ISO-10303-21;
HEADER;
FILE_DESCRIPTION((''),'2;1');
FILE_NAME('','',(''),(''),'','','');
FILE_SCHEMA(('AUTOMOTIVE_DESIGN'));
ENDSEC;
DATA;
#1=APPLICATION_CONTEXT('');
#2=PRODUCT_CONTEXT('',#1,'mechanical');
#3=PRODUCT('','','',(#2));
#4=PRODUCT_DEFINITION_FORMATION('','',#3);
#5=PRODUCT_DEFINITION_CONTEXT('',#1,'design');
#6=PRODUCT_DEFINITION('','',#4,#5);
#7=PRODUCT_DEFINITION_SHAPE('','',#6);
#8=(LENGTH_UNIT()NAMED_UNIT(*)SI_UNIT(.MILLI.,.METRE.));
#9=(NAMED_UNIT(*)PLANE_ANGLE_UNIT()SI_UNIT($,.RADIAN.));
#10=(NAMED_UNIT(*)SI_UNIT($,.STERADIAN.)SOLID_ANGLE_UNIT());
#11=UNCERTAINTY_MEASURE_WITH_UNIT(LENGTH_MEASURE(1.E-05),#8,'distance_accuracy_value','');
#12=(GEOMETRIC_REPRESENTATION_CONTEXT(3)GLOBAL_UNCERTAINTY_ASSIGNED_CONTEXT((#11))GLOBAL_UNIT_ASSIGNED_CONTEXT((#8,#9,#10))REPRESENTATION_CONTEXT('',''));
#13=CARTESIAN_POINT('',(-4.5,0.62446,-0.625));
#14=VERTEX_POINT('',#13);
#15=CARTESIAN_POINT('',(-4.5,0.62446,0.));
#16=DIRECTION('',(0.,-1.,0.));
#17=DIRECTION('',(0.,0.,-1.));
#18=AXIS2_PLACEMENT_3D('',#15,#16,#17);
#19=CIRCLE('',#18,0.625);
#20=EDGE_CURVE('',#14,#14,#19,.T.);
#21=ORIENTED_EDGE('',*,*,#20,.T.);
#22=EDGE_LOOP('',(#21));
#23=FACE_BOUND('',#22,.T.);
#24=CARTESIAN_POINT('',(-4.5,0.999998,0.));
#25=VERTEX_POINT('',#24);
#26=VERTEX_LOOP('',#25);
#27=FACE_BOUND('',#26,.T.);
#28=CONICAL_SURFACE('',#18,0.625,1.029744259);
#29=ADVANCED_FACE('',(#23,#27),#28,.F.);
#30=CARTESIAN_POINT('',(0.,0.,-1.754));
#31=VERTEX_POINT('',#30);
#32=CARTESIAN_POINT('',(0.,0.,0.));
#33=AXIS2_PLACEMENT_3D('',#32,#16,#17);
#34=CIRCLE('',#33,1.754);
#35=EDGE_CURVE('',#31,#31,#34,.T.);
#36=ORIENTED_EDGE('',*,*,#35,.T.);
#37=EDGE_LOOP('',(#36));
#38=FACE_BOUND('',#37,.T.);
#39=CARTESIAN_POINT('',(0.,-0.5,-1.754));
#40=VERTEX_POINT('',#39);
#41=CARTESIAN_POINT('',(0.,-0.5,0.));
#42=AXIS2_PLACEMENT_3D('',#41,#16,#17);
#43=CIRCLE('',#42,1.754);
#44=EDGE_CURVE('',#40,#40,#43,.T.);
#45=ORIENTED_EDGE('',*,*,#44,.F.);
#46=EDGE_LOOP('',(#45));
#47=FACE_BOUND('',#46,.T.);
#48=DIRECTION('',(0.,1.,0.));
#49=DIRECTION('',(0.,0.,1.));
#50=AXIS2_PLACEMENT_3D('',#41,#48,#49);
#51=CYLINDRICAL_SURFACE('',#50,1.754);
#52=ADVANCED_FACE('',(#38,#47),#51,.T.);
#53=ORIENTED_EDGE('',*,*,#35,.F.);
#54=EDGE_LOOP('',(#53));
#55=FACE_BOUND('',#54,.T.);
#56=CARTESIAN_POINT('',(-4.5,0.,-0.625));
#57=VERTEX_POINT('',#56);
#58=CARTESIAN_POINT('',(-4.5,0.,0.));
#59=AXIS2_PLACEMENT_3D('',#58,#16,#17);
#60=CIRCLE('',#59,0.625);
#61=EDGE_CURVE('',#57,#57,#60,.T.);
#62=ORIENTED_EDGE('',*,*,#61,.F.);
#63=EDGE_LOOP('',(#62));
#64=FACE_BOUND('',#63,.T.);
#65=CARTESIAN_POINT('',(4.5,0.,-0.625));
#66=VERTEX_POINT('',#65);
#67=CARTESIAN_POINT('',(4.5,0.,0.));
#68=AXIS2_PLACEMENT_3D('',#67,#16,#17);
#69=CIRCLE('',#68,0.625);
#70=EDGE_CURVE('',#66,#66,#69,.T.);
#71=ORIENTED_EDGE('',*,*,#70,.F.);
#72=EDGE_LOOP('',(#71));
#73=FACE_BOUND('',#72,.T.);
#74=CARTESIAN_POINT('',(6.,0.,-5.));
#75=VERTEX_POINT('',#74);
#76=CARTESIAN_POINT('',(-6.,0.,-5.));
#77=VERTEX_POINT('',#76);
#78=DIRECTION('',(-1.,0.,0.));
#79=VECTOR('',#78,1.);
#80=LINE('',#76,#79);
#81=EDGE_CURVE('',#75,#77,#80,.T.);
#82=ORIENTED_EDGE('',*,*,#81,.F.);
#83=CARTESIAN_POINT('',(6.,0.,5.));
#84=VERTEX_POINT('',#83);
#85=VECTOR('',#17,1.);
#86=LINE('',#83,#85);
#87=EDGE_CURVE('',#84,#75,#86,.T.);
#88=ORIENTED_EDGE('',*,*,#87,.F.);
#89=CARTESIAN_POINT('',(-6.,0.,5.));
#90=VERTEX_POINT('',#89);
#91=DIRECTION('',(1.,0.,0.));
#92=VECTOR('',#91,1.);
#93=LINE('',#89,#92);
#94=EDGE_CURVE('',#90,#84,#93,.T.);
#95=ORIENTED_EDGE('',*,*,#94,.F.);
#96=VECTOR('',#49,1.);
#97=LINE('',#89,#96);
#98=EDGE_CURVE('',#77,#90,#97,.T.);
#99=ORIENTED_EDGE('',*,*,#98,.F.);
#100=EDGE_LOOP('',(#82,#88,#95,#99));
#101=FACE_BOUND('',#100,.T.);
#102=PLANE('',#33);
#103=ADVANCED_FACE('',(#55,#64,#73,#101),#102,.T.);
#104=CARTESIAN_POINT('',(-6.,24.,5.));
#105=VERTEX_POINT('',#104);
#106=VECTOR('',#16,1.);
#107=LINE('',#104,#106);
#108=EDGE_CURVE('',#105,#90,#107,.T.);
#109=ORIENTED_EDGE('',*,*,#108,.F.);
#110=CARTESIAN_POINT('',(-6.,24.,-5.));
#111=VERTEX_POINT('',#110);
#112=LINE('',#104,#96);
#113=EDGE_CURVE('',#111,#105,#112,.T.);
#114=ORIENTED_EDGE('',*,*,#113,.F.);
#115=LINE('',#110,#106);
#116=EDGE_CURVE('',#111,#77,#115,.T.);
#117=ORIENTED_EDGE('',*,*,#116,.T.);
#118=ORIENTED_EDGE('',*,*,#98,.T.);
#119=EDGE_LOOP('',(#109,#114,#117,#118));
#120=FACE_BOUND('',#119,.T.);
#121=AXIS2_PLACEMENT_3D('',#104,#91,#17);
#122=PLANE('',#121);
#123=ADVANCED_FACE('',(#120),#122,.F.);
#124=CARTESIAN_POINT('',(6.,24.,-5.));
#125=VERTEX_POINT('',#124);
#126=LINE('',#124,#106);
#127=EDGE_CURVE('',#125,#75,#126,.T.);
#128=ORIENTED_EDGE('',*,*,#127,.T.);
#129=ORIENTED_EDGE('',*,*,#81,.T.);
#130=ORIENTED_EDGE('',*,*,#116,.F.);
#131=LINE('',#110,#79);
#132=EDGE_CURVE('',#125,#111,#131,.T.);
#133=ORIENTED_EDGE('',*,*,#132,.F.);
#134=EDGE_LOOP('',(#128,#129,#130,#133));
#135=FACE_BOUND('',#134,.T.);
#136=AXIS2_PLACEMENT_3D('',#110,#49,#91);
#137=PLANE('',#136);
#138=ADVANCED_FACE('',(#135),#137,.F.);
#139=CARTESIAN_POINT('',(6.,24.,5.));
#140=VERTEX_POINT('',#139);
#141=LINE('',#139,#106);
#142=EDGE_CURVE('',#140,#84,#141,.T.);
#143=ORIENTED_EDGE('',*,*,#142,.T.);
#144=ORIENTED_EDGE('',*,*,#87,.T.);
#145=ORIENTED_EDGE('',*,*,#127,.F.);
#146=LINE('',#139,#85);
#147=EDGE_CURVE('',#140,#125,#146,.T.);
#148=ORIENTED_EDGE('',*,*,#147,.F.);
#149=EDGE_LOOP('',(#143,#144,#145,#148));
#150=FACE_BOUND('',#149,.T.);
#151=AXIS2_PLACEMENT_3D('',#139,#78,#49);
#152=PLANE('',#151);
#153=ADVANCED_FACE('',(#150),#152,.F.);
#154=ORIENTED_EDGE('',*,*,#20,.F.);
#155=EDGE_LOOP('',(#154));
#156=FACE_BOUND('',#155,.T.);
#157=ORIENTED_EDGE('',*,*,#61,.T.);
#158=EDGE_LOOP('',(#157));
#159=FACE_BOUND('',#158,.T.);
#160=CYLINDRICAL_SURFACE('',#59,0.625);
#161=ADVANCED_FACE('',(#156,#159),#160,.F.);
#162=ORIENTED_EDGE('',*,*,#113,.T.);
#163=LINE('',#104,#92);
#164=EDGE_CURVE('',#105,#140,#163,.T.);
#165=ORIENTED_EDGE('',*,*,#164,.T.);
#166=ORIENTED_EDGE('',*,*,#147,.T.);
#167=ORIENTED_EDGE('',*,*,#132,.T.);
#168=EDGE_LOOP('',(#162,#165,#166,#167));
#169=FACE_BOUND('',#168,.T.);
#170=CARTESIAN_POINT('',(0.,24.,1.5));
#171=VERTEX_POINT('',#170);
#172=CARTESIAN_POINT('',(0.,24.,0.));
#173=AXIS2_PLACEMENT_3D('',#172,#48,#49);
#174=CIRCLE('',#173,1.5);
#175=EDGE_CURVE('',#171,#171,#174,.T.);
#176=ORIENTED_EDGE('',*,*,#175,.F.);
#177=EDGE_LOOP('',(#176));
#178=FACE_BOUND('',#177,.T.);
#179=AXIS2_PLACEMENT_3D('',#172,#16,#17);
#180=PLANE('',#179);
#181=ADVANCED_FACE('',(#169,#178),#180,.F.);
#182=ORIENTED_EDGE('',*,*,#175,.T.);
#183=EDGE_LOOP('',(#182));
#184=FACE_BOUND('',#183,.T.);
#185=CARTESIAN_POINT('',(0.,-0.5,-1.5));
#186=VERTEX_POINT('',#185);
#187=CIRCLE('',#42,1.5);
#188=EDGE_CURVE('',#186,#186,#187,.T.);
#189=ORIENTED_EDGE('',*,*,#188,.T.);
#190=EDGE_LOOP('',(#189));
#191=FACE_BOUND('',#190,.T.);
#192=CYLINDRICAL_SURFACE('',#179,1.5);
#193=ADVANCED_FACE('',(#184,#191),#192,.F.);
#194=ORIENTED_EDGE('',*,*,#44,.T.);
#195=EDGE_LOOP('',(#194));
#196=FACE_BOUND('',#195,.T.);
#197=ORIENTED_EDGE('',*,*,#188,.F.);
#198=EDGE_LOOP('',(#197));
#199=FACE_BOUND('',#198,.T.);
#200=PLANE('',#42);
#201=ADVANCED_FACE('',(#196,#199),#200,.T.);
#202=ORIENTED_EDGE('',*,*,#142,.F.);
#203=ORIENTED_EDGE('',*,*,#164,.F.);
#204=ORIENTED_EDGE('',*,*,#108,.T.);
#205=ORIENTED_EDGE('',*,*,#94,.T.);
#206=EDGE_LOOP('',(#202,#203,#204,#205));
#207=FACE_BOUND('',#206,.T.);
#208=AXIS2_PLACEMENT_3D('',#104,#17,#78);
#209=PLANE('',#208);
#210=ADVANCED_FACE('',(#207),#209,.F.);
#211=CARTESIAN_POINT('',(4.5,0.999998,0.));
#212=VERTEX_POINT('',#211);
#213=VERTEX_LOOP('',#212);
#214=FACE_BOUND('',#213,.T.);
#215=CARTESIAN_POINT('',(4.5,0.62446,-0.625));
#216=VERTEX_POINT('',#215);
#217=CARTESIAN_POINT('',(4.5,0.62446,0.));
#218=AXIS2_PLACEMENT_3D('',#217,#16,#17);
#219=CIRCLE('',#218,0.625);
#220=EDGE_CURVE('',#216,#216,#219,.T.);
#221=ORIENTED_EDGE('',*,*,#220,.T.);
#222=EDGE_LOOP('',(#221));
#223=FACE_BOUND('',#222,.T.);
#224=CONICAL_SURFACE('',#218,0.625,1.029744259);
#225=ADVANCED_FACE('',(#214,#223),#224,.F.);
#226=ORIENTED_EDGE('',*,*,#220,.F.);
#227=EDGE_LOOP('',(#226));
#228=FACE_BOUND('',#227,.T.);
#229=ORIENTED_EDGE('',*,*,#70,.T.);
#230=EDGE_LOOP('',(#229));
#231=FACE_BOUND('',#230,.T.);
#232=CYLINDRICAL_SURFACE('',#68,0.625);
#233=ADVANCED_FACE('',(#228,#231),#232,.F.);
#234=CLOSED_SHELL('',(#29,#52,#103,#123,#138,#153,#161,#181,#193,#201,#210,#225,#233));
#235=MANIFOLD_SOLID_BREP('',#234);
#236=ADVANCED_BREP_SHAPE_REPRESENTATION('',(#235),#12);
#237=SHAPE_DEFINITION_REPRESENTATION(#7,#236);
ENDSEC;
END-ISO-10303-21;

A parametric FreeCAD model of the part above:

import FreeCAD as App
import Part
import Sketcher

V = App.Vector
Q = App.Units.Quantity


def add_polygon(sketch, points):
    """Adds a closed chain of lines whose ends are joined by coincident constraints."""
    first, n = sketch.GeometryCount, len(points)
    for a, b in zip(points, points[1:] + points[:1]):
        sketch.addGeometry(Part.LineSegment(App.Vector(*a, 0), App.Vector(*b, 0)), False)
    for i in range(n):
        sketch.addConstraint(Sketcher.Constraint("Coincident", first + i, 2, first + (i + 1) % n, 1))

doc = App.newDocument("Part")
body = doc.addObject("PartDesign::Body", "Body")

sketch1 = doc.addObject("Sketcher::SketchObject", "Sketch")
body.addObject(sketch1)
sketch1.AttachmentSupport = (doc.XZ_Plane, [""])
sketch1.MapMode = "FlatFace"
add_polygon(sketch1, [(-6, -5), (-6, 5), (6, 5), (6, -5)])
sketch1.addGeometry(Part.Circle(V(0, 0, 0), V(0, 0, 1), 1.5), False)
sketch1.addConstraint([
    Sketcher.Constraint("Vertical", 0),
    Sketcher.Constraint("Horizontal", 1),
    Sketcher.Constraint("Vertical", 2),
    Sketcher.Constraint("Horizontal", 3),
    Sketcher.Constraint("Coincident", 4, 3, -1, 1),
    Sketcher.Constraint("Symmetric", 0, 2, 2, 2, -1, 1),
    Sketcher.Constraint("Diameter", 4, Q("3 mm")),
    Sketcher.Constraint("DistanceX", 1, 1, 1, 2, Q("12 mm")),
    Sketcher.Constraint("DistanceY", 0, 1, 0, 2, Q("10 mm")),
])
pad1 = doc.addObject("PartDesign::Pad", "Pad")
body.addObject(pad1)
pad1.Profile = sketch1
pad1.Length = 24
pad1.Reversed = True

sketch2 = doc.addObject("Sketcher::SketchObject", "Sketch001")
body.addObject(sketch2)
sketch2.AttachmentSupport = (doc.XZ_Plane, [""])
sketch2.MapMode = "FlatFace"
sketch2.addGeometry([
    Part.Circle(V(0, 0, 0), V(0, 0, 1), 1.8),
    Part.Circle(V(0, 0, 0), V(0, 0, 1), 1.5),
], False)
sketch2.addConstraint([
    Sketcher.Constraint("Coincident", 0, 3, -1, 1),
    Sketcher.Constraint("Coincident", 1, 3, -1, 1),
    Sketcher.Constraint("Diameter", 1, Q("3 mm")),
    Sketcher.Constraint("Diameter", 0, Q("3.508 mm")),
])
pad2 = doc.addObject("PartDesign::Pad", "Pad001")
body.addObject(pad2)
pad2.Profile = sketch2
pad2.Length = 0.5

sketch3 = doc.addObject("Sketcher::SketchObject", "Sketch002")
body.addObject(sketch3)
sketch3.AttachmentSupport = (doc.XZ_Plane, [""])
sketch3.MapMode = "FlatFace"
sketch3.addGeometry([
    Part.Circle(V(4.5, 0, 0), V(0, 0, 1), 0.6),
    Part.Circle(V(-4.5, 0, 0), V(0, 0, 1), 0.6),
], False)
sketch3.addConstraint([
    Sketcher.Constraint("Equal", 0, 1),
    Sketcher.Constraint("Symmetric", 0, 3, 1, 3, -1, 1),
    Sketcher.Constraint("PointOnObject", 0, 3, -1),
    Sketcher.Constraint("Diameter", 0, Q("1.25 mm")),
    Sketcher.Constraint("DistanceX", 1, 3, 0, 3, Q("9 mm")),
])
doc.recompute()
hole = doc.addObject("PartDesign::Hole", "Hole")
body.addObject(hole)
hole.Profile = sketch3
hole.ThreadType = "None"
hole.Diameter = 1.25
hole.DepthType = "Dimension"
hole.Depth = 0.62446
hole.DrillPoint = "Angled"
hole.DrillPointAngle = 118

doc.recompute()
